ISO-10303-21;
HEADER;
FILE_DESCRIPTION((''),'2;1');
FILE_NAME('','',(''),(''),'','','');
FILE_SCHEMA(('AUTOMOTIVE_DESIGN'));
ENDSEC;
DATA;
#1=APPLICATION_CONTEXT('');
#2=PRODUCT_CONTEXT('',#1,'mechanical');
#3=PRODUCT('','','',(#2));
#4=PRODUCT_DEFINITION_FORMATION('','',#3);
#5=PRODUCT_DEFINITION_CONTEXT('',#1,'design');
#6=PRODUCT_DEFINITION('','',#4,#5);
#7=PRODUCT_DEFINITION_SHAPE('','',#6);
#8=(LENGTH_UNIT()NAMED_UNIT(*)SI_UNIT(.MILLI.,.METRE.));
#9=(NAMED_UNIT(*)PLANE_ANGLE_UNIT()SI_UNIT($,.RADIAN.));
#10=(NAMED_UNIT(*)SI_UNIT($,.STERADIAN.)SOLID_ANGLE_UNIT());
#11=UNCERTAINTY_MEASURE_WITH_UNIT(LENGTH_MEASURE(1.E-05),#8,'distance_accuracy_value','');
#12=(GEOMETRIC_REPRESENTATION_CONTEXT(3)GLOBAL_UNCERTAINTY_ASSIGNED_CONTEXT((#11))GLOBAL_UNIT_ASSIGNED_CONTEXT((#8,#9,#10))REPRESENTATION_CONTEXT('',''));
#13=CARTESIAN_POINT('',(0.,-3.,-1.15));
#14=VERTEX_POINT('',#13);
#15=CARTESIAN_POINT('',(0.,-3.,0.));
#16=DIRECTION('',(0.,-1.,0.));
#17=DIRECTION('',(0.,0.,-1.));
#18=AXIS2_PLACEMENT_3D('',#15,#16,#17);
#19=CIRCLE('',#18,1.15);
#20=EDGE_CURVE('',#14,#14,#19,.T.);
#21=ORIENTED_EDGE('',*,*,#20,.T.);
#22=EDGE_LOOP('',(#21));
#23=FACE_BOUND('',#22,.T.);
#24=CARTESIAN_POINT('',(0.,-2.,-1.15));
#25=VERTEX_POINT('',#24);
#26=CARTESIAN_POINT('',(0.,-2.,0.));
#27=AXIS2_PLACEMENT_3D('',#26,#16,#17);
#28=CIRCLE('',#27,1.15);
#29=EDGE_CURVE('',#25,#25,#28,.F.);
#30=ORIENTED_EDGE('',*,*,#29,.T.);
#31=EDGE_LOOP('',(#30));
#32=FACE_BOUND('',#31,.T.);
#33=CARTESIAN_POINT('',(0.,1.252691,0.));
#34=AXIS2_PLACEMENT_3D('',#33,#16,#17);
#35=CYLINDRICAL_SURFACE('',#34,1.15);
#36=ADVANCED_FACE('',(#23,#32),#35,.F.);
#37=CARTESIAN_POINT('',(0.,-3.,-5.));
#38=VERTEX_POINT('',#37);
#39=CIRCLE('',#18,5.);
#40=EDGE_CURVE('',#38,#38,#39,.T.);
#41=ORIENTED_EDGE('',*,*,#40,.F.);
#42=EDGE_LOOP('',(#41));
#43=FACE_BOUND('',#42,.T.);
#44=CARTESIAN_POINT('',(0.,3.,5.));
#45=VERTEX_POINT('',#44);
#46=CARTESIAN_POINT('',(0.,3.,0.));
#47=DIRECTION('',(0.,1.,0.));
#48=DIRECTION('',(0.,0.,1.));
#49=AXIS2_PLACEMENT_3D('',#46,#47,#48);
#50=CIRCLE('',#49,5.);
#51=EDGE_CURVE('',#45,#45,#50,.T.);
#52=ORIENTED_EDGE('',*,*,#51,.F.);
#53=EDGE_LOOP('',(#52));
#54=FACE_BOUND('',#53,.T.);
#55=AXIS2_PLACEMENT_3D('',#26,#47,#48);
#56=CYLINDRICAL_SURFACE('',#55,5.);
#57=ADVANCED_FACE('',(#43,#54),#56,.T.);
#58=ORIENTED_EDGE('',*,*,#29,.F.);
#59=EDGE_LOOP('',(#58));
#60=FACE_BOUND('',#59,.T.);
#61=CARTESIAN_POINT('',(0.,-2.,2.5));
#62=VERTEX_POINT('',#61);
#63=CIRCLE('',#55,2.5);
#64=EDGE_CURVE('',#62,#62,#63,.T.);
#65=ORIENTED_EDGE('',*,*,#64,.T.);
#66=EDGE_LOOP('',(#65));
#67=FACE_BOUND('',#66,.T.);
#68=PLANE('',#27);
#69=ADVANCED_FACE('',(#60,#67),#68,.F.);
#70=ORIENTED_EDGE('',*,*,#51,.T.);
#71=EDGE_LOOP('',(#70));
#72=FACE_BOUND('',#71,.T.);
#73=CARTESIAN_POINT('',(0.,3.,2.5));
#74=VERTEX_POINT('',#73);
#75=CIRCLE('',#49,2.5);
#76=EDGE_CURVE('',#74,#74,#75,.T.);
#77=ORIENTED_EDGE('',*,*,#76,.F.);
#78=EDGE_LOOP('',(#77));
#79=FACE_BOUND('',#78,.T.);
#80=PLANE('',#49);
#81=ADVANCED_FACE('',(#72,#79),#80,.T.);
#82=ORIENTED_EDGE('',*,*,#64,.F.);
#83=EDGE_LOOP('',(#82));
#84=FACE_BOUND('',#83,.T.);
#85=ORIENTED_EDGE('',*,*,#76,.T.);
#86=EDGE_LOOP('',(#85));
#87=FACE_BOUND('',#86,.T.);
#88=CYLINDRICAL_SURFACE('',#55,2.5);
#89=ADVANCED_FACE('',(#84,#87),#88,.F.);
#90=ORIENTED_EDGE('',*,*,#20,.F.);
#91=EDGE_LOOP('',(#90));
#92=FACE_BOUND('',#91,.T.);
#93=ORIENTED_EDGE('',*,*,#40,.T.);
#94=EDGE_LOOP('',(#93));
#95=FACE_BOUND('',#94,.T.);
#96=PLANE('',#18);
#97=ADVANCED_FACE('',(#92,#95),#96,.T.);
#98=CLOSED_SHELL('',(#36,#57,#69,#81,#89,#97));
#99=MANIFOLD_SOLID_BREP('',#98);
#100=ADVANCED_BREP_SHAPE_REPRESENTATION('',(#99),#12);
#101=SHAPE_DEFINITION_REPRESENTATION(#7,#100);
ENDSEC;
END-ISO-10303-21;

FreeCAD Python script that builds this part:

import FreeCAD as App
import Part
import Sketcher
from FreeCAD import Vector
Q = App.Units.Quantity

doc = App.newDocument("Part")
body = doc.addObject("PartDesign::Body", "Body")

sketch1 = doc.addObject("Sketcher::SketchObject", "Sketch")
body.addObject(sketch1)
sketch1.AttachmentSupport = (doc.XZ_Plane, [""])
sketch1.MapMode = "FlatFace"
sketch1.addGeometry([
    Part.Circle(Vector(0, 0, 0), Vector(0, 0, 1), 5),
    Part.Circle(Vector(0, 0, 0), Vector(0, 0, 1), 2.5),
], False)
sketch1.addConstraint([
    Sketcher.Constraint("Coincident", 0, 3, -1, 1),
    Sketcher.Constraint("Coincident", 1, 3, -1, 1),
    Sketcher.Constraint("Diameter", 0, Q("10 mm")),
    Sketcher.Constraint("Diameter", 1, Q("5 mm")),
])
pad1 = doc.addObject("PartDesign::Pad", "Pad")
body.addObject(pad1)
pad1.Profile = sketch1
pad1.Type = "TwoLengths"
pad1.Length = 3
pad1.Length2 = 2
pad1.Reversed = True

sketch2 = doc.addObject("Sketcher::SketchObject", "Sketch001")
body.addObject(sketch2)
sketch2.AttachmentSupport = (doc.XZ_Plane, [""])
sketch2.MapMode = "FlatFace"
sketch2.AttachmentOffset = App.Placement(Vector(0, 0, 2), App.Rotation())
sketch2.addGeometry(Part.Circle(Vector(0, 0, 0), Vector(0, 0, 1), 5), False)
sketch2.addConstraint([
    Sketcher.Constraint("Coincident", 0, 3, -1, 1),
    Sketcher.Constraint("Diameter", 0, Q("10 mm")),
])
pad2 = doc.addObject("PartDesign::Pad", "Pad001")
body.addObject(pad2)
pad2.Profile = sketch2
pad2.Length = 1

sketch3 = doc.addObject("Sketcher::SketchObject", "Sketch002")
body.addObject(sketch3)
sketch3.AttachmentSupport = (doc.XZ_Plane, [""])
sketch3.MapMode = "FlatFace"
sketch3.AttachmentOffset = App.Placement(Vector(0, 0, 3), App.Rotation())
sketch3.addGeometry(Part.Circle(Vector(0, 0, 0), Vector(0, 0, 1), 1.15), False)
sketch3.addConstraint([
    Sketcher.Constraint("Coincident", 0, 3, -1, 1),
    Sketcher.Constraint("Diameter", 0, Q("2.3 mm")),
])
pocket1 = doc.addObject("PartDesign::Pocket", "Pocket")
body.addObject(pocket1)
pocket1.Profile = sketch3
pocket1.Length = 1

doc.recompute()
